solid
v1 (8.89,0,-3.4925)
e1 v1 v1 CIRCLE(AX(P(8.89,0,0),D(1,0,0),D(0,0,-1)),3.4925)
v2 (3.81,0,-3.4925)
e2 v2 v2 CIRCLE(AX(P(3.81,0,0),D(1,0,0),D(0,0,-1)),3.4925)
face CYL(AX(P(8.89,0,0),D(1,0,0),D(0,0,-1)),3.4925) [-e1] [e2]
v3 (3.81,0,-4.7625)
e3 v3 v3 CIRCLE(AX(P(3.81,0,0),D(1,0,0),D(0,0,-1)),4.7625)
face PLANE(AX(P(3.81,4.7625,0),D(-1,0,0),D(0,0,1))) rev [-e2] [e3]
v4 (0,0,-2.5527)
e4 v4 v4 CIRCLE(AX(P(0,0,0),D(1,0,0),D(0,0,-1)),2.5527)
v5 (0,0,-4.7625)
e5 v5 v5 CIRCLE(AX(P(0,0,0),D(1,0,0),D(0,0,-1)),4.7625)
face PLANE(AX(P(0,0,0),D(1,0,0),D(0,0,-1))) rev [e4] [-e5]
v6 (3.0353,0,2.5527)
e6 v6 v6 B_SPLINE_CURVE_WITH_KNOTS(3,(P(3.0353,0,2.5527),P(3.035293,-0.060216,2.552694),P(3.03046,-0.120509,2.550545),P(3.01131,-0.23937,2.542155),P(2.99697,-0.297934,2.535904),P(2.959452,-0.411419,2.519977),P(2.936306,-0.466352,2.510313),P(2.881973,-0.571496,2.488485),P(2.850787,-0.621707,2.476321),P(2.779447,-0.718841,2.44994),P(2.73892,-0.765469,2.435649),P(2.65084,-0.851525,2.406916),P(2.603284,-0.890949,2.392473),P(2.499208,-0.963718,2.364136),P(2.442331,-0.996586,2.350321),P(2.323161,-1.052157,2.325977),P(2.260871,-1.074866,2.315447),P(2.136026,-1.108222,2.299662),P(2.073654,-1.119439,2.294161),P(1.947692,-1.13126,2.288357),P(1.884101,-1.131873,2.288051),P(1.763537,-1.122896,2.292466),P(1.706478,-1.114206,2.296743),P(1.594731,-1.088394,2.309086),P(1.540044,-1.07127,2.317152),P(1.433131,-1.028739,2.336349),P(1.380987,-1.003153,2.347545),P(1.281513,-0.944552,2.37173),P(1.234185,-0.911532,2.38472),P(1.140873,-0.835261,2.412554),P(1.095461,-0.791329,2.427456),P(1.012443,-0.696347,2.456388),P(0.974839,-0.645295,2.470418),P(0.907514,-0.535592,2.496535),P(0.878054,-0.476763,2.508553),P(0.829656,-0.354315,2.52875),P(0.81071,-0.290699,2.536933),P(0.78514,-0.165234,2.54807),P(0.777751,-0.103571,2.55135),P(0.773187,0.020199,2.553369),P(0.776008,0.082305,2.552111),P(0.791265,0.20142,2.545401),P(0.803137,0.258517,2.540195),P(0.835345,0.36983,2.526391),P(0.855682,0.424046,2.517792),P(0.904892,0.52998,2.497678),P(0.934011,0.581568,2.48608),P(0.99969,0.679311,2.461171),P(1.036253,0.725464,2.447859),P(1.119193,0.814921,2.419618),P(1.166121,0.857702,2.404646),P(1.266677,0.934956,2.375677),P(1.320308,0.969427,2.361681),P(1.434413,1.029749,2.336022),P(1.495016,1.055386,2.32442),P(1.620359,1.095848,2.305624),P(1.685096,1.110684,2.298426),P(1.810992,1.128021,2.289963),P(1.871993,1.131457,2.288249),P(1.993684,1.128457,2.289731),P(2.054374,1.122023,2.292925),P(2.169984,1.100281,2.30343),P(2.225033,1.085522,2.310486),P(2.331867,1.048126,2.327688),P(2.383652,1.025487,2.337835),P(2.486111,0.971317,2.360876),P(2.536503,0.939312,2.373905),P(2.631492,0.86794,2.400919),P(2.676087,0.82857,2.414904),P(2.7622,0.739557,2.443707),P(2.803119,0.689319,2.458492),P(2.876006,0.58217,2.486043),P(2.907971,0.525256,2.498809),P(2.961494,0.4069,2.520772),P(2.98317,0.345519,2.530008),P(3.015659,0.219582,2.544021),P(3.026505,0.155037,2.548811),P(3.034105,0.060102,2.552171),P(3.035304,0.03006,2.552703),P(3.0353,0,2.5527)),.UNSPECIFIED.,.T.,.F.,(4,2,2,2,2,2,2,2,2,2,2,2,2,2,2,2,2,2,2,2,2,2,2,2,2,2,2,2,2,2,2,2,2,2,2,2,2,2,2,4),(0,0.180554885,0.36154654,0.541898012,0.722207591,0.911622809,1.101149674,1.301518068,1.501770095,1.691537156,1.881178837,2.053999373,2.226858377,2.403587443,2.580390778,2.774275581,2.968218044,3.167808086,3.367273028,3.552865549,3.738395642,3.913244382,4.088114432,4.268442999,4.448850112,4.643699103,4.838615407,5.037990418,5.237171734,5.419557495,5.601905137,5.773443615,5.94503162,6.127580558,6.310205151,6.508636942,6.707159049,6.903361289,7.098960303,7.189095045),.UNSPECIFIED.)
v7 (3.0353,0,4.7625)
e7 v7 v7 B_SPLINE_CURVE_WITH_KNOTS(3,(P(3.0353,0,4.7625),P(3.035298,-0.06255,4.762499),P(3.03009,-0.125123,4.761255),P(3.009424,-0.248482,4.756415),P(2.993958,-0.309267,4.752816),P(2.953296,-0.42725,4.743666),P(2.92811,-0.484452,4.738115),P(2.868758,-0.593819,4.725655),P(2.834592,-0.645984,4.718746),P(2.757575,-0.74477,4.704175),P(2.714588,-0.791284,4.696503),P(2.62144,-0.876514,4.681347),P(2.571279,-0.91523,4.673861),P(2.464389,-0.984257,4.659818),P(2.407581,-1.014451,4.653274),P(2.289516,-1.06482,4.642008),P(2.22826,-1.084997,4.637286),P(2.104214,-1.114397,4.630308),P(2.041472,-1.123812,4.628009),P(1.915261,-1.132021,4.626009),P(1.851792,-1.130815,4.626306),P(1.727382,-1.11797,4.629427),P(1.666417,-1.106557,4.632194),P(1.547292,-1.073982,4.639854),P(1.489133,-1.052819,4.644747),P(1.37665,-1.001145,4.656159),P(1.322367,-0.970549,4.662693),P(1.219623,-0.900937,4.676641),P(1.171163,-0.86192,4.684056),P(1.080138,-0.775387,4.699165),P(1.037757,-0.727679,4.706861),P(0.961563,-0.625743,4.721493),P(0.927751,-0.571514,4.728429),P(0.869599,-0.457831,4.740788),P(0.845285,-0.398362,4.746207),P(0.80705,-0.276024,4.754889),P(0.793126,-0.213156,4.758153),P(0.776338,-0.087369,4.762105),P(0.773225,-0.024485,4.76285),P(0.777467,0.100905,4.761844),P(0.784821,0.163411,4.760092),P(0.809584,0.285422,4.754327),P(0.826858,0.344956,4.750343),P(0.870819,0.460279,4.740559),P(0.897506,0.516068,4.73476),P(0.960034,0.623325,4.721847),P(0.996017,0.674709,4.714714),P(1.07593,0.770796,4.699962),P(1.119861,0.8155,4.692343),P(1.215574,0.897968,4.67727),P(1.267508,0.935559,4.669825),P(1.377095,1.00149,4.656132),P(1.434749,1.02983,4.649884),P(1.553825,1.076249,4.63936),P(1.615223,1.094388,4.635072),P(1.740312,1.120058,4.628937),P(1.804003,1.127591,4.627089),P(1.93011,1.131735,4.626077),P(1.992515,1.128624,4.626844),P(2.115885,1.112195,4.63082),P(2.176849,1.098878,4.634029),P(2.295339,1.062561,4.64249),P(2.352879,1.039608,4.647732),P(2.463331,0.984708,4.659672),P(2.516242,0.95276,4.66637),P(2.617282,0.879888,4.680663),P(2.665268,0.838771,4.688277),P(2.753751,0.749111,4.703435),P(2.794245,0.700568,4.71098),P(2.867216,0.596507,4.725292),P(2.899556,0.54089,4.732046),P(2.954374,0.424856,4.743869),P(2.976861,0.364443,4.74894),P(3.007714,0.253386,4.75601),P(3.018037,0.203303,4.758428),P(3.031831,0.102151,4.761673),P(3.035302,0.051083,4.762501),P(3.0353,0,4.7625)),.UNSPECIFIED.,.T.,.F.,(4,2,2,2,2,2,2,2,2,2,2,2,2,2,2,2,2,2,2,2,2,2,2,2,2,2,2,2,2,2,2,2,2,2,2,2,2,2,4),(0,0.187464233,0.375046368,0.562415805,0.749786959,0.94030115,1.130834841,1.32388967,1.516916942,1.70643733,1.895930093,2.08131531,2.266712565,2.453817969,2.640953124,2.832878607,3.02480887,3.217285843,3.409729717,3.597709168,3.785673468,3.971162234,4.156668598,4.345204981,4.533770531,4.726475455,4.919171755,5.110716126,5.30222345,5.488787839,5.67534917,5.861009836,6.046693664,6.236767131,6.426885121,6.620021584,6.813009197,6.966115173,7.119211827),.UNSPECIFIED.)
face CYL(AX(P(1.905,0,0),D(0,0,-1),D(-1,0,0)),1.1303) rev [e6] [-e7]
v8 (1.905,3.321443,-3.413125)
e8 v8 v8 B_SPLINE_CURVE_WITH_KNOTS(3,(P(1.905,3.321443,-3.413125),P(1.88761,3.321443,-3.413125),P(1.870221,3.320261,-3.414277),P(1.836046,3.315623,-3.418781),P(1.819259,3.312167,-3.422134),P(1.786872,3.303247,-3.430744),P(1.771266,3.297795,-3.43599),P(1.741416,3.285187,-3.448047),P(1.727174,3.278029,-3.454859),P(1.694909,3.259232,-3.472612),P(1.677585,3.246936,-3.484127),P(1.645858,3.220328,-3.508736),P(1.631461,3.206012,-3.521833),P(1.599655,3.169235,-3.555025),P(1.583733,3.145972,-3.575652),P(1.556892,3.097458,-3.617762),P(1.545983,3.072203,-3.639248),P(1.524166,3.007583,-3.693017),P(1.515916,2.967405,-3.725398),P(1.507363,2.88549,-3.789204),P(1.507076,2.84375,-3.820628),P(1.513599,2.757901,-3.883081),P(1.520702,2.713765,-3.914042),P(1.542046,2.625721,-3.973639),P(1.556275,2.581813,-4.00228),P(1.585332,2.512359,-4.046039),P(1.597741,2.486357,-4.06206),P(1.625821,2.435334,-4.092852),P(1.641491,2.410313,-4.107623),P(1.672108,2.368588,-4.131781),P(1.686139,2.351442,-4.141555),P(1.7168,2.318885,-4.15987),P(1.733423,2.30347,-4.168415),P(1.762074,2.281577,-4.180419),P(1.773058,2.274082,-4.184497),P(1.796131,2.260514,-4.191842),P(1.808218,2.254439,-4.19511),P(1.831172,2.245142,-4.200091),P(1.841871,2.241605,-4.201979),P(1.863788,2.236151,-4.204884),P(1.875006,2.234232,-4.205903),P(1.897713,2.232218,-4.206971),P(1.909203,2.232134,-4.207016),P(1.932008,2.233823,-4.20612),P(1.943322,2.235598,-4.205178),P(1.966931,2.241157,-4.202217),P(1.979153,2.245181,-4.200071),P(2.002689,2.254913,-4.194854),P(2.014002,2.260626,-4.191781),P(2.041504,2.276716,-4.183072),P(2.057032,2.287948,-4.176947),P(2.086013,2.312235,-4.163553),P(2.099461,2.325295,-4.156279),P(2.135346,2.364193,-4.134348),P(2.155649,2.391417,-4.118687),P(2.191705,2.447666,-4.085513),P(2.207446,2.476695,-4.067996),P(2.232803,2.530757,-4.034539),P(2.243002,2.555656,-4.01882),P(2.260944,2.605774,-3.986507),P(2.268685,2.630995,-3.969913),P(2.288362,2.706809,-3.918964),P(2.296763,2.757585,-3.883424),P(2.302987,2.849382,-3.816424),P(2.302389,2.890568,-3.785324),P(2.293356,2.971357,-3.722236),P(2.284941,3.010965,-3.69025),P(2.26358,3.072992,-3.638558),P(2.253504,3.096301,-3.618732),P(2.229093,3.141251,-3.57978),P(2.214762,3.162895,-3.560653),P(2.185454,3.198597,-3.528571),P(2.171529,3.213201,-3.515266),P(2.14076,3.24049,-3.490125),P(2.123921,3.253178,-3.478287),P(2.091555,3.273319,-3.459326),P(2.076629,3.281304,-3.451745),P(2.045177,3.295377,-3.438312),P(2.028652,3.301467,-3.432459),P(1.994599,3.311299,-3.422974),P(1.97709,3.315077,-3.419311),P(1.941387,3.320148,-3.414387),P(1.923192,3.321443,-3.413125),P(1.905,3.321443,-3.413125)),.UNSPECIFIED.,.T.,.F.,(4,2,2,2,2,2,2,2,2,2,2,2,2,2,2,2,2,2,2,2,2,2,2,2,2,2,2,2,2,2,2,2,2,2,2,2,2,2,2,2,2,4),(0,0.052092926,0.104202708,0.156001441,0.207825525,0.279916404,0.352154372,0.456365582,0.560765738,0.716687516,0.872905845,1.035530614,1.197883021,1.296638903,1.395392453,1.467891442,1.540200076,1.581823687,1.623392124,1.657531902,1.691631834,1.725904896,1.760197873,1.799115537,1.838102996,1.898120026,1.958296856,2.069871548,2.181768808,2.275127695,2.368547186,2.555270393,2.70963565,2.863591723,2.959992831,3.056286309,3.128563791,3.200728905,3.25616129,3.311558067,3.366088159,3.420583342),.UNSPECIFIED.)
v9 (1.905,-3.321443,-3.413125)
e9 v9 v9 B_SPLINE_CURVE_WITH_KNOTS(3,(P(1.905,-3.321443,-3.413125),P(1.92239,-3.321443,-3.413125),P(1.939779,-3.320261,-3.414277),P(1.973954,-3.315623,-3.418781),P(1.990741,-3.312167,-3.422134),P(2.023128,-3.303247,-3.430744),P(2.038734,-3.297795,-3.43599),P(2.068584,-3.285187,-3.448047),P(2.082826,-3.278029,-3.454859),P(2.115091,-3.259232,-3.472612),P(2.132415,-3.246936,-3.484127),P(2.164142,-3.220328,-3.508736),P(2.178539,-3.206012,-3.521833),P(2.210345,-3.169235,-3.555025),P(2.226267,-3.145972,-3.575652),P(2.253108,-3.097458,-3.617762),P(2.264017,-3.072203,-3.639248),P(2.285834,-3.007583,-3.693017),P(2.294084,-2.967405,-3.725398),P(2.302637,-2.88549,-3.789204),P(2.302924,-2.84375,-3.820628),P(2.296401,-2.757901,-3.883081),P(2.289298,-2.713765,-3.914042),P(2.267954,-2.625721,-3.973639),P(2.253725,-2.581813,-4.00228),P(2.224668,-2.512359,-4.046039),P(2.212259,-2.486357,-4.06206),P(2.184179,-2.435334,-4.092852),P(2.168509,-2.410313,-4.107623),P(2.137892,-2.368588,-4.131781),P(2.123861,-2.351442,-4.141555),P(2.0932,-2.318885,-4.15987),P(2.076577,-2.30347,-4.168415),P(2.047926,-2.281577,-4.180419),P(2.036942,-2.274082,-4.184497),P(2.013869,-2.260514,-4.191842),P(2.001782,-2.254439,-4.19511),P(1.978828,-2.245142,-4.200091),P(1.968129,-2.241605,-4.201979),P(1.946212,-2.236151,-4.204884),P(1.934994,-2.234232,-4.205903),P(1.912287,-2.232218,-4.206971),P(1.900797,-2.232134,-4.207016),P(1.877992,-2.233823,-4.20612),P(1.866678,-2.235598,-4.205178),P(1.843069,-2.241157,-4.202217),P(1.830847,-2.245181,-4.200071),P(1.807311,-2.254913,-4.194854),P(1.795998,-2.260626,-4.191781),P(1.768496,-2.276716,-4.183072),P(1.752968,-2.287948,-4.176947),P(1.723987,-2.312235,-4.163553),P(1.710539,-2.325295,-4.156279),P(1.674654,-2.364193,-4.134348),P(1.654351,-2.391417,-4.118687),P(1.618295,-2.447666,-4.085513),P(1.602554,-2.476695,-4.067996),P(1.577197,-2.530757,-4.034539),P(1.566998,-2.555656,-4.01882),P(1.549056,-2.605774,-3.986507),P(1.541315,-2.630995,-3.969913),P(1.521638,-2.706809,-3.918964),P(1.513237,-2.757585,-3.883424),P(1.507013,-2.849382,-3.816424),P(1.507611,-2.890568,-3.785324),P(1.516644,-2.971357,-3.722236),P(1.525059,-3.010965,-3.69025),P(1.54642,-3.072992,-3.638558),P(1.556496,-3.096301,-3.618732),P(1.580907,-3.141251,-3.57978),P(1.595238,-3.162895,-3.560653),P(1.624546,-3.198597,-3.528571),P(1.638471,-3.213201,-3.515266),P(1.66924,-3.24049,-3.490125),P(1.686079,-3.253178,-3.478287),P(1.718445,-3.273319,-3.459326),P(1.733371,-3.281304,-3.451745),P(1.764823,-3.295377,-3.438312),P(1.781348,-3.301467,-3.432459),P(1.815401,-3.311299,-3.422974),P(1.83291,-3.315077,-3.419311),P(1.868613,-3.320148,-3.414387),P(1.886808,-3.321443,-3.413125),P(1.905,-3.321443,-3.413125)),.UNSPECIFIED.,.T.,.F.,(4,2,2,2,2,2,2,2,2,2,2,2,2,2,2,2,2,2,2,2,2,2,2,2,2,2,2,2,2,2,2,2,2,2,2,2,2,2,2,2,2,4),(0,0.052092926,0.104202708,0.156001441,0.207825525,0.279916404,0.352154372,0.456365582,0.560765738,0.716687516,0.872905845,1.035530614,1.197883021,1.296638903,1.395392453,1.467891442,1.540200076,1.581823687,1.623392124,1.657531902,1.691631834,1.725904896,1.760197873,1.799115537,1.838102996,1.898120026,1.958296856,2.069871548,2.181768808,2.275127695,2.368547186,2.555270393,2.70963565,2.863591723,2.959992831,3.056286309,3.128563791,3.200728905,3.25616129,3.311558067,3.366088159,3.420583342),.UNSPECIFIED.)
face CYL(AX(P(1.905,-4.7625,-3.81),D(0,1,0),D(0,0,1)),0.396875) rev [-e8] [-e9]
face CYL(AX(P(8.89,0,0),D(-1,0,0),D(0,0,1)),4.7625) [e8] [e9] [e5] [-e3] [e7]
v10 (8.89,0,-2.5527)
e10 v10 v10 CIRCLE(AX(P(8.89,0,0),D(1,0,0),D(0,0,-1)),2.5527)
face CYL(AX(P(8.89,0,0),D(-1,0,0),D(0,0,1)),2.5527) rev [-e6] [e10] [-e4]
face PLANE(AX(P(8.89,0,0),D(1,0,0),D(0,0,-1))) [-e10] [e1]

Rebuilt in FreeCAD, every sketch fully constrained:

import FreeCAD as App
import Part
import Sketcher
from FreeCAD import Vector
Q = App.Units.Quantity

doc = App.newDocument("Part")
body = doc.addObject("PartDesign::Body", "Body")

sketch1 = body.newObject("Sketcher::SketchObject", "Sketch")
sketch1.AttachmentSupport = (doc.getObject("YZ_Plane"), [""])
sketch1.MapMode = "FlatFace"
sketch1.addGeometry([
    Part.Circle(Vector(0, 0, 0), Vector(0, 0, 1), 4.8),
    Part.Circle(Vector(0, 0, 0), Vector(0, 0, 1), 2.6),
], False)
sketch1.addConstraint([
    Sketcher.Constraint("Coincident", 0, 3, -1, 1),
    Sketcher.Constraint("Coincident", 1, 3, -1, 1),
    Sketcher.Constraint("Diameter", 0, Q("0.375 in")),
    Sketcher.Constraint("Diameter", 1, Q("0.201 in")),
])
pad1 = body.newObject("PartDesign::Pad", "Pad")
pad1.Profile = sketch1
pad1.Length = Q("0.35 in")

sketch2 = body.newObject("Sketcher::SketchObject", "Sketch001")
sketch2.AttachmentSupport = (doc.getObject("XY_Plane"), [""])
sketch2.MapMode = "FlatFace"
sketch2.addGeometry([
    Part.LineSegment(Vector(3.8, 4.8, 0), Vector(3.8, 3.5, 0)),
    Part.LineSegment(Vector(3.8, 3.5, 0), Vector(8.9, 3.5, 0)),
    Part.LineSegment(Vector(8.9, 3.5, 0), Vector(8.9, 4.8, 0)),
    Part.LineSegment(Vector(8.9, 4.8, 0), Vector(3.8, 4.8, 0)),
], False)
sketch2.addConstraint([
    Sketcher.Constraint("Coincident", 0, 2, 1, 1),
    Sketcher.Constraint("Coincident", 1, 2, 2, 1),
    Sketcher.Constraint("Coincident", 2, 2, 3, 1),
    Sketcher.Constraint("Coincident", 3, 2, 0, 1),
    Sketcher.Constraint("Vertical", 0),
    Sketcher.Constraint("Horizontal", 1),
    Sketcher.Constraint("Vertical", 2),
    Sketcher.Constraint("Horizontal", 3),
    Sketcher.Constraint("DistanceX", 1, 1, 1, 2, Q("0.2 in")),
    Sketcher.Constraint("DistanceY", 0, 2, 0, 1, Q("0.05 in")),
    Sketcher.Constraint("DistanceX", -1, 1, 0, 2, Q("0.15 in")),
    Sketcher.Constraint("DistanceY", -1, 1, 2, 2, Q("0.1875 in")),
])
groove = body.newObject("PartDesign::Groove", "Groove")
groove.Profile = sketch2
groove.ReferenceAxis = (sketch2, ["H_Axis"])
groove.Angle = 360

sketch3 = body.newObject("Sketcher::SketchObject", "Sketch002")
sketch3.AttachmentSupport = (doc.getObject("XZ_Plane"), [""])
sketch3.MapMode = "FlatFace"
sketch3.addGeometry(Part.Circle(Vector(1.91, -3.81, 0), Vector(0, 0, 1), 0.4), False)
sketch3.addConstraint([
    Sketcher.Constraint("Diameter", 0, Q("0.03125 in")),
    Sketcher.Constraint("DistanceY", 0, 3, -1, 1, Q("0.15 in")),
    Sketcher.Constraint("DistanceX", -1, 1, 0, 3, Q("0.075 in")),
])
pocket1 = body.newObject("PartDesign::Pocket", "Pocket")
pocket1.Profile = sketch3
pocket1.Type = "ThroughAll"
pocket1.Midplane = True

sketch4 = body.newObject("Sketcher::SketchObject", "Sketch003")
sketch4.AttachmentSupport = (doc.getObject("YZ_Plane"), [""])
sketch4.MapMode = "FlatFace"
sketch4.AttachmentOffset = App.Placement(Vector(0, 0, 0.075 * 25.4), App.Rotation())
sketch4.addGeometry([
    Part.LineSegment(Vector(0, 4.8, 0), Vector(0, 0, 0)),
    Part.LineSegment(Vector(0, 0, 0), Vector(1.1, 0, 0)),
    Part.LineSegment(Vector(1.1, 0, 0), Vector(1.1, 4.8, 0)),
    Part.LineSegment(Vector(1.1, 4.8, 0), Vector(0, 4.8, 0)),
], False)
sketch4.addConstraint([
    Sketcher.Constraint("Coincident", 0, 2, 1, 1),
    Sketcher.Constraint("Coincident", 1, 2, 2, 1),
    Sketcher.Constraint("Coincident", 2, 2, 3, 1),
    Sketcher.Constraint("Coincident", 3, 2, 0, 1),
    Sketcher.Constraint("Vertical", 0),
    Sketcher.Constraint("Horizontal", 1),
    Sketcher.Constraint("Vertical", 2),
    Sketcher.Constraint("Horizontal", 3),
    Sketcher.Constraint("Coincident", 0, 2, -1, 1),
    Sketcher.Constraint("DistanceY", 0, 2, 0, 1, Q("0.1875 in")),
    Sketcher.Constraint("DistanceX", 1, 1, 1, 2, Q("0.0445 in")),
])
groove2 = body.newObject("PartDesign::Groove", "Groove001")
groove2.Profile = sketch4
groove2.ReferenceAxis = (sketch4, ["V_Axis"])
groove2.Angle = 360

doc.recompute()
